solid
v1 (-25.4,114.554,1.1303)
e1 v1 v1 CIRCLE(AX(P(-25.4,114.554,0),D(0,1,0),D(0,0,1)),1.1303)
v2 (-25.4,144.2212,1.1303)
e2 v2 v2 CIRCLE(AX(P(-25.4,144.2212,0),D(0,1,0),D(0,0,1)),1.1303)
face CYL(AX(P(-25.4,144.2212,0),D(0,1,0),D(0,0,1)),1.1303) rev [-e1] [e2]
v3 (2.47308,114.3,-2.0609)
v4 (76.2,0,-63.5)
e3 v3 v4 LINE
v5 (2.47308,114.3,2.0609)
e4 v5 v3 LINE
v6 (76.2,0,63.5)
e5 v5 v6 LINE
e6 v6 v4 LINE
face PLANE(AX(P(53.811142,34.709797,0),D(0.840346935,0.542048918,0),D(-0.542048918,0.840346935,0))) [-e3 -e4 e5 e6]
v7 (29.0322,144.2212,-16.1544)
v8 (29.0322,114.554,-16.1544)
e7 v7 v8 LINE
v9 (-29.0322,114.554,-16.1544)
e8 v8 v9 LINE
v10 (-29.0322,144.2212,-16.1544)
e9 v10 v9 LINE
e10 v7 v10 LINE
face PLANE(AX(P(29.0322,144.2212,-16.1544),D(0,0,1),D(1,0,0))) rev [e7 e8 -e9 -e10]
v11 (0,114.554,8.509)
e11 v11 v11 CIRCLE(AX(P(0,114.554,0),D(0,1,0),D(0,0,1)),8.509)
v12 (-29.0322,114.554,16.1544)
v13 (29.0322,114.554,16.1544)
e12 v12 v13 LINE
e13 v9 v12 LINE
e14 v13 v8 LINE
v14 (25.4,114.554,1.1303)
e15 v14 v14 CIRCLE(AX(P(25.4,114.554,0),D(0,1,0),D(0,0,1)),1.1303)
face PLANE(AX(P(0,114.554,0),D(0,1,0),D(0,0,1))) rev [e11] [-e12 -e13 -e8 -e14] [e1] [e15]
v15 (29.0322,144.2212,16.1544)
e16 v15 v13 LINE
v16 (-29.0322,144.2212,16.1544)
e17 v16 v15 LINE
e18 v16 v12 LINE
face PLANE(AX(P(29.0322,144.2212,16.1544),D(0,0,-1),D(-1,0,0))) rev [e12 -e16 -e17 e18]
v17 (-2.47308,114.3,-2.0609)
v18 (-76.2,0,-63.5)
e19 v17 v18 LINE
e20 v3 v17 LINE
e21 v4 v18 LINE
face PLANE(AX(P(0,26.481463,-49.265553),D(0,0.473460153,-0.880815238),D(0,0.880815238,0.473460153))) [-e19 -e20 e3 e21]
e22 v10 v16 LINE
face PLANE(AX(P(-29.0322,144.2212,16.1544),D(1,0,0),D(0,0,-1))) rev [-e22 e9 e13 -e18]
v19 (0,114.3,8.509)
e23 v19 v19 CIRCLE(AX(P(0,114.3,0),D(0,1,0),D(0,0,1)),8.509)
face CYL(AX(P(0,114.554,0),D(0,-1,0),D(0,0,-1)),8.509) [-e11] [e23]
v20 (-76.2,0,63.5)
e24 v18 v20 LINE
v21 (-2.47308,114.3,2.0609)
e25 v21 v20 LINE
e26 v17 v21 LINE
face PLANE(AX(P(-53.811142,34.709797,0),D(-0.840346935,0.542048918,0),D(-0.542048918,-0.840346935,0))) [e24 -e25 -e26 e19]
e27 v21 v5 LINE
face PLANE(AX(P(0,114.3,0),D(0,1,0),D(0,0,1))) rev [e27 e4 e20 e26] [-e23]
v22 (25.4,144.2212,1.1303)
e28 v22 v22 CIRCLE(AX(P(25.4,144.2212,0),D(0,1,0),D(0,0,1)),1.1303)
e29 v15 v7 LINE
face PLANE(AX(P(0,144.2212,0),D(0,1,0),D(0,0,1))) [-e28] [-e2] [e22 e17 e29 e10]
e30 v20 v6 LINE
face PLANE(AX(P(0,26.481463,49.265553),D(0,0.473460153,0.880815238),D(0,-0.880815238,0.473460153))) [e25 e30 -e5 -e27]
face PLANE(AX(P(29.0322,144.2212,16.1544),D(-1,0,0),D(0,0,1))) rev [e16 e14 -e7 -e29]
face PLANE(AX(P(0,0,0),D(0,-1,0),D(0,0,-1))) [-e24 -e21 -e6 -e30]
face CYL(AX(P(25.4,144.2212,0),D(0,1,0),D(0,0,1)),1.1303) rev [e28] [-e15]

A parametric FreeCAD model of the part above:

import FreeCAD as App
import Part
import Sketcher
from FreeCAD import Vector
Q = App.Units.Quantity


def add_polygon(sketch, points):
    """Adds a closed chain of lines whose ends are joined by coincident constraints."""
    first, n = sketch.GeometryCount, len(points)
    for a, b in zip(points, points[1:] + points[:1]):
        sketch.addGeometry(Part.LineSegment(App.Vector(*a, 0), App.Vector(*b, 0)), False)
    for i in range(n):
        sketch.addConstraint(Sketcher.Constraint("Coincident", first + i, 2, first + (i + 1) % n, 1))

doc = App.newDocument("Part")
body = doc.addObject("PartDesign::Body", "Body")

# Sketch on XZ plane
sketch1 = body.newObject("Sketcher::SketchObject", "Sketch")
sketch1.AttachmentSupport = (doc.getObject("XZ_Plane"), [""])
sketch1.MapMode = "FlatFace"
sketch1.AttachmentOffset = App.Placement(Vector(0, 0, -4.5 * 25.4), App.Rotation())
add_polygon(sketch1, [(-2.5, 2.1), (2.5, 2.1), (2.5, -2.1), (-2.5, -2.1)])  # lines 0-3
sketch1.addConstraint(Sketcher.Constraint("Horizontal", 0))
sketch1.addConstraint(Sketcher.Constraint("Vertical", 1))
sketch1.addConstraint(Sketcher.Constraint("Horizontal", 2))
sketch1.addConstraint(Sketcher.Constraint("Vertical", 3))
sketch1.addConstraint(Sketcher.Constraint("Symmetric", 0, 2, 2, 2, -1, 1))
sketch1.addConstraint(Sketcher.Constraint("DistanceY", 1, 2, 1, 1, Q("4.1218 mm")))
sketch1.addConstraint(Sketcher.Constraint("DistanceX", 0, 1, 0, 2, Q("4.94616 mm")))

# Sketch on XZ plane
sketch2 = body.newObject("Sketcher::SketchObject", "Sketch001")
sketch2.AttachmentSupport = (doc.getObject("XZ_Plane"), [""])
sketch2.MapMode = "FlatFace"
add_polygon(sketch2, [(-76, 64), (76, 64), (76, -64), (-76, -64)])  # lines 0-3
sketch2.addConstraint(Sketcher.Constraint("Horizontal", 0))
sketch2.addConstraint(Sketcher.Constraint("Vertical", 1))
sketch2.addConstraint(Sketcher.Constraint("Horizontal", 2))
sketch2.addConstraint(Sketcher.Constraint("Vertical", 3))
sketch2.addConstraint(Sketcher.Constraint("Symmetric", 0, 2, 2, 2, -1, 1))
sketch2.addConstraint(Sketcher.Constraint("DistanceX", 0, 1, 0, 2, Q("6 in")))
sketch2.addConstraint(Sketcher.Constraint("DistanceY", 1, 2, 1, 1, Q("5 in")))

additiveloft = body.newObject("PartDesign::AdditiveLoft", "AdditiveLoft")
additiveloft.Profile = sketch1
additiveloft.Sections = [sketch2]

# Sketch on XZ plane
sketch3 = body.newObject("Sketcher::SketchObject", "Sketch002")
sketch3.AttachmentSupport = (doc.getObject("XZ_Plane"), [""])
sketch3.MapMode = "FlatFace"
sketch3.AttachmentOffset = App.Placement(Vector(0, 0, -4.5 * 25.4), App.Rotation())
sketch3.addGeometry(Part.Circle(Vector(0, 0, 0), Vector(0, 0, 1), 9), False)
sketch3.addConstraint(Sketcher.Constraint("Coincident", 0, 3, -1, 1))
sketch3.addConstraint(Sketcher.Constraint("Diameter", 0, Q("0.67 in")))
pad1 = body.newObject("PartDesign::Pad", "Pad")
pad1.Profile = sketch3
pad1.Length = Q("0.01 in")
pad1.Reversed = True

# Sketch on XZ plane
sketch4 = body.newObject("Sketcher::SketchObject", "Sketch003")
sketch4.AttachmentSupport = (doc.getObject("XZ_Plane"), [""])
sketch4.MapMode = "FlatFace"
sketch4.AttachmentOffset = App.Placement(Vector(0, 0, -4.51 * 25.4), App.Rotation())
add_polygon(sketch4, [(-29, -16), (-29, 16), (29, 16), (29, -16)])  # lines 0-3
sketch4.addConstraint(Sketcher.Constraint("Vertical", 0))
sketch4.addConstraint(Sketcher.Constraint("Horizontal", 1))
sketch4.addConstraint(Sketcher.Constraint("Vertical", 2))
sketch4.addConstraint(Sketcher.Constraint("Horizontal", 3))
sketch4.addConstraint(Sketcher.Constraint("Symmetric", 0, 2, 2, 2, -1, 1))
sketch4.addConstraint(Sketcher.Constraint("DistanceX", 1, 1, 1, 2, Q("2.286 in")))
sketch4.addConstraint(Sketcher.Constraint("DistanceY", 0, 1, 0, 2, Q("1.272 in")))
pad2 = body.newObject("PartDesign::Pad", "Pad001")
pad2.Profile = sketch4
pad2.Length = Q("1.168 in")
pad2.Reversed = True

# Sketch on XZ plane
sketch5 = body.newObject("Sketcher::SketchObject", "Sketch004")
sketch5.AttachmentSupport = (doc.getObject("XZ_Plane"), [""])
sketch5.MapMode = "FlatFace"
sketch5.AttachmentOffset = App.Placement(Vector(0, 0, -5.678 * 25.4), App.Rotation())
sketch5.addGeometry(Part.Circle(Vector(-25.4, 0, 0), Vector(0, 0, 1), 1.1), False)
sketch5.addGeometry(Part.Circle(Vector(25.4, 0, 0), Vector(0, 0, 1), 1.1), False)
sketch5.addConstraint(Sketcher.Constraint("Equal", 0, 1))
sketch5.addConstraint(Sketcher.Constraint("Symmetric", 0, 3, 1, 3, -1, 1))
sketch5.addConstraint(Sketcher.Constraint("PointOnObject", 0, 3, -1))
sketch5.addConstraint(Sketcher.Constraint("Diameter", 0, Q("0.089 in")))
sketch5.addConstraint(Sketcher.Constraint("DistanceX", 0, 3, -1, 1, Q("1 in")))
doc.recompute()
hole = body.newObject("PartDesign::Hole", "Hole")
hole.Profile = sketch5
hole.ThreadType = "None"
hole.Diameter = Q("0.089 in")
hole.DepthType = "Dimension"
hole.Depth = Q("1.168 in")
hole.DrillPoint = "Flat"
hole.Reversed = True

doc.recompute()
